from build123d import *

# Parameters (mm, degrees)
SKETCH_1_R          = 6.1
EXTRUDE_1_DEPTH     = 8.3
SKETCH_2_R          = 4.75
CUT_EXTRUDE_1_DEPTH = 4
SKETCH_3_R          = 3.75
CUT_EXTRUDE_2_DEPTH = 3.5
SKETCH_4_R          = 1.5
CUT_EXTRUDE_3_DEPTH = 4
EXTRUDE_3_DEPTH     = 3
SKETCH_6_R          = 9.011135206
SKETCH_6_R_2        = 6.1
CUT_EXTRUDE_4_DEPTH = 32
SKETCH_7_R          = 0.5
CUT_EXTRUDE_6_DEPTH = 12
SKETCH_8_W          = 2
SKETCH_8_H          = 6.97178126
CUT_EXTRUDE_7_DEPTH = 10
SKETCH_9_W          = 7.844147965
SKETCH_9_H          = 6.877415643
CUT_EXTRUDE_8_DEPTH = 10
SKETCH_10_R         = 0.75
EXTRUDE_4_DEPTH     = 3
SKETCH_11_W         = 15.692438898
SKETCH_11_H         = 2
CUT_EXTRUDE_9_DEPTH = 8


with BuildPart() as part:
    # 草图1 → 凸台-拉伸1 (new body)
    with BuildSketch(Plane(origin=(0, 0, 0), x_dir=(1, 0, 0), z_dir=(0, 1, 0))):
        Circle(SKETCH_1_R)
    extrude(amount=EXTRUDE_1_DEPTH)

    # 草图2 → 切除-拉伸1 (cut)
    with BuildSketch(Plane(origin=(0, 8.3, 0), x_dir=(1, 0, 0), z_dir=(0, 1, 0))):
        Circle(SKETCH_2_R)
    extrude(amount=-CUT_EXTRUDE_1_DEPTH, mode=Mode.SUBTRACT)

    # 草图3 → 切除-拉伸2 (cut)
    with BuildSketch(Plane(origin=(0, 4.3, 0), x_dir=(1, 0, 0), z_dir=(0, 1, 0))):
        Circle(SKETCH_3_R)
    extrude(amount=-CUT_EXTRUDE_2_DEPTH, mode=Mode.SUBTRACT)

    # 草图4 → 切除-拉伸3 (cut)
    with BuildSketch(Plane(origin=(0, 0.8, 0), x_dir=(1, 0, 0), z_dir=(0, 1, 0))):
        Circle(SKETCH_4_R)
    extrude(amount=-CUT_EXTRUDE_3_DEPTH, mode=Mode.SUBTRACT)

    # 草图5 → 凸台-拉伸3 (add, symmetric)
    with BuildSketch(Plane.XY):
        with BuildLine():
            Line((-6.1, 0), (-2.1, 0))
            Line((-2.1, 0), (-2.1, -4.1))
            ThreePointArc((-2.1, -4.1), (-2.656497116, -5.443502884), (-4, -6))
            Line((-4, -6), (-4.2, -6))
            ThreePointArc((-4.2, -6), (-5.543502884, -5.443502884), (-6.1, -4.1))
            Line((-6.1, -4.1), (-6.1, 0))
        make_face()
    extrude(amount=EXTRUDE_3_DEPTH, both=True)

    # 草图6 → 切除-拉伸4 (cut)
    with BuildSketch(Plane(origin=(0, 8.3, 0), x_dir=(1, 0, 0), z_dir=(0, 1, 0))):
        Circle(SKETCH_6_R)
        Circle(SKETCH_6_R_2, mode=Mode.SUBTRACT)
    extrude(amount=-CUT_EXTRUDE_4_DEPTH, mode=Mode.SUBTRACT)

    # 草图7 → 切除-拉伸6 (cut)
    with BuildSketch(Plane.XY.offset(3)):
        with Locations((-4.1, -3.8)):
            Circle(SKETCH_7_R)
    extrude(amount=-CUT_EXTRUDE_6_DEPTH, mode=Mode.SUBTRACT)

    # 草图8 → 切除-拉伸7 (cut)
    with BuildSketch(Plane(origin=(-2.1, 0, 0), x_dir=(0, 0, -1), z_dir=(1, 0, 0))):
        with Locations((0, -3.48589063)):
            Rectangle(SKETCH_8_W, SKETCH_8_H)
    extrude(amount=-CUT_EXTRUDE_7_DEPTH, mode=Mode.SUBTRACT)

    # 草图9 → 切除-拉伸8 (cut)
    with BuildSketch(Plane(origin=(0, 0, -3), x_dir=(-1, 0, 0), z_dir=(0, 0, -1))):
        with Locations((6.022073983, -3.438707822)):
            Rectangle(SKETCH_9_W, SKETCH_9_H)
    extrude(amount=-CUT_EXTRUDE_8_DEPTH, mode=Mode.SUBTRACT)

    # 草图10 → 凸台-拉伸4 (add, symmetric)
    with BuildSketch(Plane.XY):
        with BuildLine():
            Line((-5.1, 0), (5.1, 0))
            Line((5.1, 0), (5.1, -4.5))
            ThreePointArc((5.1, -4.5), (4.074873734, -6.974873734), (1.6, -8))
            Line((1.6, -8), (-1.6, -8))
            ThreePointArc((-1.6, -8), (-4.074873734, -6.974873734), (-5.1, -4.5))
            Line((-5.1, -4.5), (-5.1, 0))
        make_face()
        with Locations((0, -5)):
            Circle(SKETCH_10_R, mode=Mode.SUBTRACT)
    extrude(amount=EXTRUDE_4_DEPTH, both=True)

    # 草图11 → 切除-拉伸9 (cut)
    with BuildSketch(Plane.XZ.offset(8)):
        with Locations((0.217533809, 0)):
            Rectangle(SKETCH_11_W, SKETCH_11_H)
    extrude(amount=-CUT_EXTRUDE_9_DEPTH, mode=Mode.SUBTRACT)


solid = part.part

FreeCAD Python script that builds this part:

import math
import FreeCAD as App
import Part
import Sketcher


def add_polygon(sketch, points):
    """Adds a closed chain of lines whose ends are joined by coincident constraints."""
    first, n = sketch.GeometryCount, len(points)
    for a, b in zip(points, points[1:] + points[:1]):
        sketch.addGeometry(Part.LineSegment(App.Vector(*a, 0), App.Vector(*b, 0)), False)
    for i in range(n):
        sketch.addConstraint(Sketcher.Constraint("Coincident", first + i, 2, first + (i + 1) % n, 1))

doc = App.newDocument("Part")
body = doc.addObject("PartDesign::Body", "Body")

# Sketch on XZ plane
sketch1 = body.newObject("Sketcher::SketchObject", "Sketch")
sketch1.AttachmentSupport = (doc.getObject("XZ_Plane"), [""])
sketch1.MapMode = "FlatFace"
sketch1.addGeometry(Part.Circle(App.Vector(0, 0, 0), App.Vector(0, 0, 1), 6.1), False)
sketch1.addConstraint([
    Sketcher.Constraint("Coincident", 0, 3, -1, 1),
    Sketcher.Constraint("Diameter", 0, 12.2),
])
pad1 = body.newObject("PartDesign::Pad", "Pad")
pad1.Profile = sketch1
pad1.Length = 8.3
pad1.Reversed = True

# Sketch on XZ plane
sketch2 = body.newObject("Sketcher::SketchObject", "Sketch001")
sketch2.AttachmentSupport = (doc.getObject("XZ_Plane"), [""])
sketch2.MapMode = "FlatFace"
sketch2.AttachmentOffset = App.Placement(App.Vector(0, 0, -8.3), App.Rotation())
sketch2.addGeometry(Part.Circle(App.Vector(0, 0, 0), App.Vector(0, 0, 1), 4.75), False)
sketch2.addConstraint([
    Sketcher.Constraint("Coincident", 0, 3, -1, 1),
    Sketcher.Constraint("Diameter", 0, 9.5),
])
pocket1 = body.newObject("PartDesign::Pocket", "Pocket")
pocket1.Profile = sketch2
pocket1.Length = 4
pocket1.Reversed = True

# Sketch on XZ plane
sketch3 = body.newObject("Sketcher::SketchObject", "Sketch002")
sketch3.AttachmentSupport = (doc.getObject("XZ_Plane"), [""])
sketch3.MapMode = "FlatFace"
sketch3.AttachmentOffset = App.Placement(App.Vector(0, 0, -4.3), App.Rotation())
sketch3.addGeometry(Part.Circle(App.Vector(0, 0, 0), App.Vector(0, 0, 1), 3.75), False)
sketch3.addConstraint([
    Sketcher.Constraint("Coincident", 0, 3, -1, 1),
    Sketcher.Constraint("Diameter", 0, 7.5),
])
pocket2 = body.newObject("PartDesign::Pocket", "Pocket001")
pocket2.Profile = sketch3
pocket2.Length = 3.5
pocket2.Reversed = True

# Sketch on XZ plane
sketch4 = body.newObject("Sketcher::SketchObject", "Sketch003")
sketch4.AttachmentSupport = (doc.getObject("XZ_Plane"), [""])
sketch4.MapMode = "FlatFace"
sketch4.AttachmentOffset = App.Placement(App.Vector(0, 0, -0.8), App.Rotation())
sketch4.addGeometry(Part.Circle(App.Vector(0, 0, 0), App.Vector(0, 0, 1), 1.5), False)
sketch4.addConstraint([
    Sketcher.Constraint("Coincident", 0, 3, -1, 1),
    Sketcher.Constraint("Diameter", 0, 3.0),
])
pocket3 = body.newObject("PartDesign::Pocket", "Pocket002")
pocket3.Profile = sketch4
pocket3.Length = 4
pocket3.Reversed = True

# Sketch on XY plane
sketch5 = body.newObject("Sketcher::SketchObject", "Sketch004")
sketch5.AttachmentSupport = (doc.getObject("XY_Plane"), [""])
sketch5.MapMode = "FlatFace"
sketch5.addGeometry([
    Part.LineSegment(App.Vector(-2.1, 0, 0), App.Vector(-6.1, 0, 0)),  # 0
    Part.LineSegment(App.Vector(-6.1, 0, 0), App.Vector(-6.1, -4.1, 0)),  # 1
    Part.ArcOfCircle(Part.Circle(App.Vector(-4.2, -4.1, 0), App.Vector(0, 0, 1), 1.9), math.radians(-180), math.radians(-90)),  # 2
    Part.LineSegment(App.Vector(-4.2, -6, 0), App.Vector(-4, -6, 0)),  # 3
    Part.ArcOfCircle(Part.Circle(App.Vector(-4, -4.1, 0), App.Vector(0, 0, 1), 1.9), math.radians(-90), math.radians(0)),  # 4
    Part.LineSegment(App.Vector(-2.1, -4.1, 0), App.Vector(-2.1, 0, 0)),  # 5
], False)
sketch5.addConstraint([
    Sketcher.Constraint("Coincident", 0, 2, 1, 1),
    Sketcher.Constraint("Tangent", 1, 2, 2, 1),
    Sketcher.Constraint("Tangent", 2, 2, 3, 1),
    Sketcher.Constraint("Tangent", 3, 2, 4, 1),
    Sketcher.Constraint("Tangent", 4, 2, 5, 1),
    Sketcher.Constraint("Coincident", 5, 2, 0, 1),
    Sketcher.Constraint("Horizontal", 0),
    Sketcher.Constraint("Vertical", 1),
    Sketcher.Constraint("Horizontal", 3),
    Sketcher.Constraint("Vertical", 5),
    Sketcher.Constraint("Equal", 2, 4),
    Sketcher.Constraint("PointOnObject", 0, 2, -1),
    Sketcher.Constraint("Radius", 2, 1.9),
    Sketcher.Constraint("DistanceX", 0, 2, 0, 1, 4.0),
    Sketcher.Constraint("DistanceY", 1, 2, 1, 1, 4.1),
    Sketcher.Constraint("DistanceX", 4, 3, -1, 1, 4.0),
])
pad2 = body.newObject("PartDesign::Pad", "Pad001")
pad2.Profile = sketch5
pad2.Length = 6
pad2.Midplane = True

# Sketch on XZ plane
sketch6 = body.newObject("Sketcher::SketchObject", "Sketch005")
sketch6.AttachmentSupport = (doc.getObject("XZ_Plane"), [""])
sketch6.MapMode = "FlatFace"
sketch6.AttachmentOffset = App.Placement(App.Vector(0, 0, -8.3), App.Rotation())
sketch6.addGeometry([
    Part.Circle(App.Vector(0, 0, 0), App.Vector(0, 0, 1), 9.011135),
    Part.Circle(App.Vector(0, 0, 0), App.Vector(0, 0, 1), 6.1),
], False)
sketch6.addConstraint([
    Sketcher.Constraint("Coincident", 0, 3, -1, 1),
    Sketcher.Constraint("Coincident", 1, 3, -1, 1),
    Sketcher.Constraint("Diameter", 1, 12.2),
    Sketcher.Constraint("Diameter", 0, 18.02227),
])
pocket4 = body.newObject("PartDesign::Pocket", "Pocket003")
pocket4.Profile = sketch6
pocket4.Length = 32
pocket4.Reversed = True

# Sketch on XY plane
sketch7 = body.newObject("Sketcher::SketchObject", "Sketch006")
sketch7.AttachmentSupport = (doc.getObject("XY_Plane"), [""])
sketch7.MapMode = "FlatFace"
sketch7.AttachmentOffset = App.Placement(App.Vector(0, 0, 3), App.Rotation())
sketch7.addGeometry(Part.Circle(App.Vector(-4.1, -3.8, 0), App.Vector(0, 0, 1), 0.5), False)
sketch7.addConstraint([
    Sketcher.Constraint("Diameter", 0, 1.0),
    Sketcher.Constraint("DistanceX", 0, 3, -1, 1, 4.1),
    Sketcher.Constraint("DistanceY", 0, 3, -1, 1, 3.8),
])
pocket5 = body.newObject("PartDesign::Pocket", "Pocket004")
pocket5.Profile = sketch7
pocket5.Length = 12

# Sketch on YZ plane
sketch8 = body.newObject("Sketcher::SketchObject", "Sketch007")
sketch8.AttachmentSupport = (doc.getObject("YZ_Plane"), [""])
sketch8.MapMode = "FlatFace"
sketch8.AttachmentOffset = App.Placement(App.Vector(0, 0, -2.1), App.Rotation())
add_polygon(sketch8, [(0, 1), (-6.971781, 1), (-6.971781, -1), (0, -1)])  # lines 0-3
sketch8.addConstraint([
    Sketcher.Constraint("Horizontal", 0),
    Sketcher.Constraint("Vertical", 1),
    Sketcher.Constraint("Horizontal", 2),
    Sketcher.Constraint("Vertical", 3),
    Sketcher.Constraint("Symmetric", 2, 2, 3, 2, -1, 1),
    Sketcher.Constraint("DistanceY", 1, 2, 1, 1, 2.0),
    Sketcher.Constraint("DistanceX", 0, 2, 0, 1, 6.971781),
])
pocket6 = body.newObject("PartDesign::Pocket", "Pocket005")
pocket6.Profile = sketch8
pocket6.Length = 10

# Sketch on XY plane
sketch9 = body.newObject("Sketcher::SketchObject", "Sketch008")
sketch9.AttachmentSupport = (doc.getObject("XY_Plane"), [""])
sketch9.MapMode = "FlatFace"
sketch9.AttachmentOffset = App.Placement(App.Vector(0, 0, -3), App.Rotation())
add_polygon(sketch9, [(-2.1, 0), (-2.1, -6.877416), (-9.944148, -6.877416), (-9.944148, 0)])  # lines 0-3
sketch9.addConstraint([
    Sketcher.Constraint("Vertical", 0),
    Sketcher.Constraint("Horizontal", 1),
    Sketcher.Constraint("Vertical", 2),
    Sketcher.Constraint("Horizontal", 3),
    Sketcher.Constraint("PointOnObject", 2, 2, -1),
    Sketcher.Constraint("DistanceX", 0, 2, -1, 1, 2.1),
    Sketcher.Constraint("DistanceX", 1, 2, 1, 1, 7.844148),
    Sketcher.Constraint("DistanceY", 0, 2, 0, 1, 6.877416),
])
pocket7 = body.newObject("PartDesign::Pocket", "Pocket006")
pocket7.Profile = sketch9
pocket7.Length = 10
pocket7.Reversed = True

# Sketch on XY plane
sketch10 = body.newObject("Sketcher::SketchObject", "Sketch009")
sketch10.AttachmentSupport = (doc.getObject("XY_Plane"), [""])
sketch10.MapMode = "FlatFace"
sketch10.addGeometry([
    Part.LineSegment(App.Vector(5.1, 0, 0), App.Vector(-5.1, 0, 0)),  # 0
    Part.LineSegment(App.Vector(-5.1, 0, 0), App.Vector(-5.1, -4.5, 0)),  # 1
    Part.ArcOfCircle(Part.Circle(App.Vector(-1.6, -4.5, 0), App.Vector(0, 0, 1), 3.5), math.radians(-180), math.radians(-90)),  # 2
    Part.LineSegment(App.Vector(-1.6, -8, 0), App.Vector(1.6, -8, 0)),  # 3
    Part.ArcOfCircle(Part.Circle(App.Vector(1.6, -4.5, 0), App.Vector(0, 0, 1), 3.5), math.radians(-90), math.radians(0)),  # 4
    Part.LineSegment(App.Vector(5.1, -4.5, 0), App.Vector(5.1, 0, 0)),  # 5
    Part.Circle(App.Vector(0, -5, 0), App.Vector(0, 0, 1), 0.75),  # 6
], False)
sketch10.addConstraint([
    Sketcher.Constraint("Coincident", 0, 2, 1, 1),
    Sketcher.Constraint("Tangent", 1, 2, 2, 1),
    Sketcher.Constraint("Tangent", 2, 2, 3, 1),
    Sketcher.Constraint("Tangent", 3, 2, 4, 1),
    Sketcher.Constraint("Tangent", 4, 2, 5, 1),
    Sketcher.Constraint("Coincident", 5, 2, 0, 1),
    Sketcher.Constraint("Horizontal", 0),
    Sketcher.Constraint("Vertical", 1),
    Sketcher.Constraint("Horizontal", 3),
    Sketcher.Constraint("Vertical", 5),
    Sketcher.Constraint("Equal", 2, 4),
    Sketcher.Constraint("Symmetric", 0, 2, 5, 2, -1, 1),
    Sketcher.Constraint("PointOnObject", 6, 3, -2),
    Sketcher.Constraint("Diameter", 6, 1.5),
    Sketcher.Constraint("Radius", 2, 3.5),
    Sketcher.Constraint("DistanceX", 0, 2, 0, 1, 10.2),
    Sketcher.Constraint("DistanceY", 1, 2, 1, 1, 4.5),
    Sketcher.Constraint("DistanceY", 6, 3, -1, 1, 5.0),
])
pad3 = body.newObject("PartDesign::Pad", "Pad002")
pad3.Profile = sketch10
pad3.Length = 6
pad3.Midplane = True

# Sketch on XZ plane
sketch11 = body.newObject("Sketcher::SketchObject", "Sketch010")
sketch11.AttachmentSupport = (doc.getObject("XZ_Plane"), [""])
sketch11.MapMode = "FlatFace"
sketch11.AttachmentOffset = App.Placement(App.Vector(0, 0, 8), App.Rotation())
add_polygon(sketch11, [(-7.628686, 1), (-7.628686, -1), (8.063753, -1), (8.063753, 1)])  # lines 0-3
sketch11.addConstraint([
    Sketcher.Constraint("Vertical", 0),
    Sketcher.Constraint("Horizontal", 1),
    Sketcher.Constraint("Vertical", 2),
    Sketcher.Constraint("Horizontal", 3),
    Sketcher.Constraint("DistanceY", 0, 2, 0, 1, 2.0),
    Sketcher.Constraint("DistanceY", 0, 2, -1, 1, 1.0),
    Sketcher.Constraint("DistanceX", 1, 1, 1, 2, 15.692439),
    Sketcher.Constraint("DistanceX", 0, 2, -1, 1, 7.628686),
])
pocket8 = body.newObject("PartDesign::Pocket", "Pocket007")
pocket8.Profile = sketch11
pocket8.Length = 8

doc.recompute()
